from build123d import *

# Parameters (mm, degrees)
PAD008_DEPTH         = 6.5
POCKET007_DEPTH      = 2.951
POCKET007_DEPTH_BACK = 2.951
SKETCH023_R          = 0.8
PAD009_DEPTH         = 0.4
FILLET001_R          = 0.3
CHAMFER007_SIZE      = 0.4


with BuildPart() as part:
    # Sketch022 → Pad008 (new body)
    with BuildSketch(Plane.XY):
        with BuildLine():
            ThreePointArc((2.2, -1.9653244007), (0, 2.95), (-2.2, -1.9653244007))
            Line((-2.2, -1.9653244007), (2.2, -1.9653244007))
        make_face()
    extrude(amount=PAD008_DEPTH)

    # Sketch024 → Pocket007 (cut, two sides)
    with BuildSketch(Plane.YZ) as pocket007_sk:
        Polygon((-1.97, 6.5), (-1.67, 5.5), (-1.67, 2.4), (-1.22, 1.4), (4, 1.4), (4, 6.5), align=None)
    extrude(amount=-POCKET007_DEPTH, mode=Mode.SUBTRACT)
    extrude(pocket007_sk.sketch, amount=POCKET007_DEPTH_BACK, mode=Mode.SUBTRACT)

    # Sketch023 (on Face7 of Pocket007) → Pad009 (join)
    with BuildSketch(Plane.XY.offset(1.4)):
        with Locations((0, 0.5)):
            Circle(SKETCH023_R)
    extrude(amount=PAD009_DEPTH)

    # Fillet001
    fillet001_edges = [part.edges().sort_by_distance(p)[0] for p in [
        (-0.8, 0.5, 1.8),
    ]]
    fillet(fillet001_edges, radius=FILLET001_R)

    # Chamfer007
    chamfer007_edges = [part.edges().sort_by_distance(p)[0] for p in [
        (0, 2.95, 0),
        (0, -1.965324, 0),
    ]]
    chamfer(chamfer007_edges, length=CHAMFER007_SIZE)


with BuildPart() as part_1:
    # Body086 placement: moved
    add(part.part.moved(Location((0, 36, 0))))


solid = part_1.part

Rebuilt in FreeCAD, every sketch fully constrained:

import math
import FreeCAD as App
import Part
import Sketcher


def edges_at(feature, points):
    """Names of the edges that pass closest to the given points."""
    edges = feature.Shape.Edges
    near = lambda p: min(range(len(edges)), key=lambda i: edges[i].distToShape(Part.Vertex(*p))[0])
    return sorted({f"Edge{near(p) + 1}" for p in points})

doc = App.newDocument("Part")
body = doc.addObject("PartDesign::Body", "Body")

# Sketch on XY plane
sketch1 = body.newObject("Sketcher::SketchObject", "Sketch")
sketch1.AttachmentSupport = (doc.getObject("XY_Plane"), [""])
sketch1.MapMode = "FlatFace"
sketch1.addGeometry([
    Part.ArcOfCircle(Part.Circle(App.Vector(0, 0, 0), App.Vector(0, 0, 1), 2.95), math.radians(-41.775348), math.radians(221.775348)),
    Part.LineSegment(App.Vector(-2.2, -1.965324, 0), App.Vector(2.2, -1.965324, 0)),
], False)
sketch1.addConstraint([
    Sketcher.Constraint("Coincident", 0, 1, 1, 2),
    Sketcher.Constraint("Coincident", 1, 1, 0, 2),
    Sketcher.Constraint("Horizontal", 1),
    Sketcher.Constraint("Coincident", 0, 3, -1, 1),
    Sketcher.Constraint("Radius", 0, 2.95),
    Sketcher.Constraint("DistanceX", 1, 1, 1, 2, 4.4),
])
pad1 = body.newObject("PartDesign::Pad", "Pad")
pad1.Profile = sketch1
pad1.Length = 6.5

# Sketch on YZ plane
sketch2 = body.newObject("Sketcher::SketchObject", "Sketch001")
sketch2.AttachmentSupport = (doc.getObject("YZ_Plane"), [""])
sketch2.MapMode = "FlatFace"
sketch2.addGeometry([
    Part.LineSegment(App.Vector(-1.97, 6.5, 0), App.Vector(-1.67, 5.5, 0)),  # 0
    Part.LineSegment(App.Vector(-1.67, 5.5, 0), App.Vector(-1.67, 2.4, 0)),  # 1
    Part.LineSegment(App.Vector(-1.67, 2.4, 0), App.Vector(-1.22, 1.4, 0)),  # 2
    Part.LineSegment(App.Vector(-1.22, 1.4, 0), App.Vector(4, 1.4, 0)),  # 3
    Part.LineSegment(App.Vector(4, 1.4, 0), App.Vector(4, 6.5, 0)),  # 4
    Part.LineSegment(App.Vector(4, 6.5, 0), App.Vector(-1.97, 6.5, 0)),  # 5
], False)
sketch2.addConstraint([
    Sketcher.Constraint("Coincident", 0, 2, 1, 1),
    Sketcher.Constraint("Coincident", 1, 2, 2, 1),
    Sketcher.Constraint("Coincident", 2, 2, 3, 1),
    Sketcher.Constraint("Coincident", 3, 2, 4, 1),
    Sketcher.Constraint("Coincident", 4, 2, 5, 1),
    Sketcher.Constraint("Coincident", 5, 2, 0, 1),
    Sketcher.Constraint("Vertical", 1),
    Sketcher.Constraint("Horizontal", 3),
    Sketcher.Constraint("Vertical", 4),
    Sketcher.Constraint("Horizontal", 5),
    Sketcher.Constraint("DistanceY", 1, 2, 1, 1, 3.1),
    Sketcher.Constraint("DistanceY", 4, 1, 4, 2, 5.1),
    Sketcher.Constraint("DistanceX", -1, 1, 3, 2, 4.0),
    Sketcher.Constraint("DistanceY", 2, 2, 1, 2, 1.0),
    Sketcher.Constraint("DistanceX", 3, 1, 3, 2, 5.22),
    Sketcher.Constraint("DistanceX", 5, 2, 5, 1, 5.97),
    Sketcher.Constraint("DistanceY", -1, 1, 0, 2, 5.5),
    Sketcher.Constraint("DistanceX", 5, 2, 0, 2, 0.3),
])
pocket1 = body.newObject("PartDesign::Pocket", "Pocket")
pocket1.Profile = sketch2
pocket1.Type = "ThroughAll"
pocket1.Midplane = True

# Sketch on XY plane
sketch3 = body.newObject("Sketcher::SketchObject", "Sketch002")
sketch3.AttachmentSupport = (doc.getObject("XY_Plane"), [""])
sketch3.MapMode = "FlatFace"
sketch3.AttachmentOffset = App.Placement(App.Vector(0, 0, 1.4), App.Rotation())
sketch3.addGeometry(Part.Circle(App.Vector(0, 0.5, 0), App.Vector(0, 0, 1), 0.8), False)
sketch3.addConstraint([
    Sketcher.Constraint("PointOnObject", 0, 3, -2),
    Sketcher.Constraint("Diameter", 0, 1.6),
    Sketcher.Constraint("DistanceY", -1, 1, 0, 3, 0.5),
])
pad2 = body.newObject("PartDesign::Pad", "Pad001")
pad2.Profile = sketch3
pad2.Length = 0.4
doc.recompute()

fillet = body.newObject("PartDesign::Fillet", "Fillet")
fillet.Base = (pad2, edges_at(pad2, [(-0.8, 0.5, 1.8)]))
fillet.Radius = 0.3
doc.recompute()

chamfer = body.newObject("PartDesign::Chamfer", "Chamfer")
chamfer.Base = (fillet, edges_at(fillet, [(0, 2.95, 0), (0, -1.965, 0)]))
chamfer.Size = 0.4
body2 = doc.addObject("PartDesign::Body", "Body001")
doc.recompute()

body.Placement = App.Placement(App.Vector(0, 36, 0), App.Rotation(App.Vector(0, 0, 1), 0))
boolean = body2.newObject("PartDesign::Boolean", "Boolean")
boolean.Type = "Fuse"
boolean.addObjects([body])

doc.recompute()
